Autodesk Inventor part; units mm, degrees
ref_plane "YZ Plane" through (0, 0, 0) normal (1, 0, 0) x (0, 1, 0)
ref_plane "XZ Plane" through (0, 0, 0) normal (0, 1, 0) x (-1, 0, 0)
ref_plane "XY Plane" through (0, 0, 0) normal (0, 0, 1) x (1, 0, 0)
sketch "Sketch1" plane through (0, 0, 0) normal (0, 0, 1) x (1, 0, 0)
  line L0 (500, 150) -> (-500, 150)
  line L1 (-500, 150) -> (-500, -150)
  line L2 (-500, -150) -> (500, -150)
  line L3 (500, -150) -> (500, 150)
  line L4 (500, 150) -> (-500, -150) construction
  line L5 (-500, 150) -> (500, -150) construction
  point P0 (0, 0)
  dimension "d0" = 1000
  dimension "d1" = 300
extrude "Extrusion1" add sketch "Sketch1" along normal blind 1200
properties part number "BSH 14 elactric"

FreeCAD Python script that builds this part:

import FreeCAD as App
import Part
import Sketcher
Q = App.Units.Quantity

doc = App.newDocument("Part")
body = doc.addObject("PartDesign::Body", "Body")

sketch1 = body.newObject("Sketcher::SketchObject", "Sketch")
sketch1.AttachmentSupport = (doc.getObject("XY_Plane"), [""])
sketch1.MapMode = "FlatFace"
sketch1.addGeometry(Part.LineSegment(App.Vector(500, -150, 0), App.Vector(500, 150, 0)), False)
sketch1.addGeometry(Part.LineSegment(App.Vector(500, 150, 0), App.Vector(-500, 150, 0)), False)
sketch1.addGeometry(Part.LineSegment(App.Vector(-500, 150, 0), App.Vector(-500, -150, 0)), False)
sketch1.addGeometry(Part.LineSegment(App.Vector(-500, -150, 0), App.Vector(500, -150, 0)), False)
sketch1.addConstraint(Sketcher.Constraint("Coincident", 0, 2, 1, 1))
sketch1.addConstraint(Sketcher.Constraint("Coincident", 1, 2, 2, 1))
sketch1.addConstraint(Sketcher.Constraint("Coincident", 2, 2, 3, 1))
sketch1.addConstraint(Sketcher.Constraint("Coincident", 3, 2, 0, 1))
sketch1.addConstraint(Sketcher.Constraint("Vertical", 0))
sketch1.addConstraint(Sketcher.Constraint("Horizontal", 1))
sketch1.addConstraint(Sketcher.Constraint("Vertical", 2))
sketch1.addConstraint(Sketcher.Constraint("Horizontal", 3))
sketch1.addConstraint(Sketcher.Constraint("Symmetric", 0, 2, 2, 2, -1, 1))
sketch1.addConstraint(Sketcher.Constraint("DistanceX", 1, 2, 1, 1, Q("1000 mm")))
sketch1.addConstraint(Sketcher.Constraint("DistanceY", 0, 1, 0, 2, Q("300 mm")))
pad1 = body.newObject("PartDesign::Pad", "Pad")
pad1.Profile = sketch1
pad1.Length = 1200

doc.recompute()
